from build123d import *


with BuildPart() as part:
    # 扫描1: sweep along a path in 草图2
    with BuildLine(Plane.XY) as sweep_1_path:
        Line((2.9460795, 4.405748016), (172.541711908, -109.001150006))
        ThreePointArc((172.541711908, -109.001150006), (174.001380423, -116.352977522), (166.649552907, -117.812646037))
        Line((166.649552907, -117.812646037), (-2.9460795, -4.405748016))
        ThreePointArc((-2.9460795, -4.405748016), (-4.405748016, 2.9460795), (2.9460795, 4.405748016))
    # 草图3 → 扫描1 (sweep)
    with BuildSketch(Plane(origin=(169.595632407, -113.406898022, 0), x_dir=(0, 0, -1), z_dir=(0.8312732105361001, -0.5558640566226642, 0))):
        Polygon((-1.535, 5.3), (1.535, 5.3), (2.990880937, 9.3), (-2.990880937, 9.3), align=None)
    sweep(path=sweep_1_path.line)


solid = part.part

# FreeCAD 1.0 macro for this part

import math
import FreeCAD as App
import Part
import Sketcher
Q = App.Units.Quantity

doc = App.newDocument("Part")
params = doc.addObject("Spreadsheet::Sheet", "Params")
for row, (alias, value) in enumerate([
    ("sketch1_width", "3.07 mm"),
    ("sketch2_radius", "5.3 mm"),
], start=1):
    params.set(f"A{row}", alias)
    params.set(f"B{row}", "=" + value)
    params.setAlias(f"B{row}", alias)

body = doc.addObject("PartDesign::Body", "Body")

# Sketch on an angled plane
sketch1 = doc.addObject("Sketcher::SketchObject", "Sketch")
body.addObject(sketch1)
sketch1.Placement = App.Placement(App.Vector(169.595632, -113.406898, 0), App.Rotation(App.Vector(0, 0, -1), App.Vector(0.555864057, 0.831273211, 0), App.Vector(0.831273211, -0.555864057, 0), "ZXY"))
sketch1.addGeometry([
    Part.LineSegment(App.Vector(-1.5, 5.3, 0), App.Vector(1.5, 5.3, 0)),
    Part.LineSegment(App.Vector(1.5, 5.3, 0), App.Vector(3, 9.3, 0)),
    Part.LineSegment(App.Vector(3, 9.3, 0), App.Vector(-3, 9.3, 0)),
    Part.LineSegment(App.Vector(-3, 9.3, 0), App.Vector(-1.5, 5.3, 0)),
], False)
sketch1.addConstraint([
    Sketcher.Constraint("Coincident", 0, 2, 1, 1),
    Sketcher.Constraint("Coincident", 1, 2, 2, 1),
    Sketcher.Constraint("Coincident", 2, 2, 3, 1),
    Sketcher.Constraint("Coincident", 3, 2, 0, 1),
    Sketcher.Constraint("Horizontal", 0),
    Sketcher.Constraint("Horizontal", 2),
    Sketcher.Constraint("Equal", 1, 3),
    Sketcher.Constraint("Angle", 1, Q("70 deg")),
    Sketcher.Constraint("DistanceY", 0, 2, 1, 2, 4.0),
    Sketcher.Constraint("DistanceX", 0, 1, 0, 2, 3.07),
    Sketcher.Constraint("DistanceY", -1, 1, 0, 2, 5.3),
    Sketcher.Constraint("DistanceX", -1, 1, 0, 2, 1.535),
])
sketch1.setExpression("Constraints[9]", "Params.sketch1_width")

# Sketch on XY plane
sketch2 = doc.addObject("Sketcher::SketchObject", "Sketch001")
body.addObject(sketch2)
sketch2.AttachmentSupport = (doc.XY_Plane, [""])
sketch2.MapMode = "FlatFace"
sketch2.addGeometry([
    Part.LineSegment(App.Vector(3, 4, 0), App.Vector(173, -109, 0)),
    Part.ArcOfCircle(Part.Circle(App.Vector(170, -113, 0), App.Vector(0, 0, 1), 5), math.radians(-124), math.radians(56)),
    Part.LineSegment(App.Vector(167, -118, 0), App.Vector(-3, -4, 0)),
    Part.ArcOfCircle(Part.Circle(App.Vector(0, 0, 0), App.Vector(0, 0, 1), 5), math.radians(56), math.radians(236)),
], False)
sketch2.addConstraint([
    Sketcher.Constraint("Tangent", 0, 2, 1, 2),
    Sketcher.Constraint("Tangent", 1, 1, 2, 1),
    Sketcher.Constraint("Tangent", 2, 2, 3, 2),
    Sketcher.Constraint("Tangent", 3, 1, 0, 1),
    Sketcher.Constraint("Coincident", 3, 3, -1, 1),
    Sketcher.Constraint("Equal", 1, 3),
    Sketcher.Constraint("Radius", 1, 5.3),
    Sketcher.Constraint("DistanceY", 1, 3, -1, 1, 113.406898),
    Sketcher.Constraint("DistanceY", 0, 2, 2, 2, 104.595402),
])
sketch2.setExpression("Constraints[6]", "Params.sketch2_radius")
doc.recompute()

additivepipe = doc.addObject("PartDesign::AdditivePipe", "AdditivePipe")
body.addObject(additivepipe)
additivepipe.Profile = sketch1
additivepipe.Spine = (sketch2, ["Edge1", "Edge2", "Edge3", "Edge4"])

doc.recompute()
